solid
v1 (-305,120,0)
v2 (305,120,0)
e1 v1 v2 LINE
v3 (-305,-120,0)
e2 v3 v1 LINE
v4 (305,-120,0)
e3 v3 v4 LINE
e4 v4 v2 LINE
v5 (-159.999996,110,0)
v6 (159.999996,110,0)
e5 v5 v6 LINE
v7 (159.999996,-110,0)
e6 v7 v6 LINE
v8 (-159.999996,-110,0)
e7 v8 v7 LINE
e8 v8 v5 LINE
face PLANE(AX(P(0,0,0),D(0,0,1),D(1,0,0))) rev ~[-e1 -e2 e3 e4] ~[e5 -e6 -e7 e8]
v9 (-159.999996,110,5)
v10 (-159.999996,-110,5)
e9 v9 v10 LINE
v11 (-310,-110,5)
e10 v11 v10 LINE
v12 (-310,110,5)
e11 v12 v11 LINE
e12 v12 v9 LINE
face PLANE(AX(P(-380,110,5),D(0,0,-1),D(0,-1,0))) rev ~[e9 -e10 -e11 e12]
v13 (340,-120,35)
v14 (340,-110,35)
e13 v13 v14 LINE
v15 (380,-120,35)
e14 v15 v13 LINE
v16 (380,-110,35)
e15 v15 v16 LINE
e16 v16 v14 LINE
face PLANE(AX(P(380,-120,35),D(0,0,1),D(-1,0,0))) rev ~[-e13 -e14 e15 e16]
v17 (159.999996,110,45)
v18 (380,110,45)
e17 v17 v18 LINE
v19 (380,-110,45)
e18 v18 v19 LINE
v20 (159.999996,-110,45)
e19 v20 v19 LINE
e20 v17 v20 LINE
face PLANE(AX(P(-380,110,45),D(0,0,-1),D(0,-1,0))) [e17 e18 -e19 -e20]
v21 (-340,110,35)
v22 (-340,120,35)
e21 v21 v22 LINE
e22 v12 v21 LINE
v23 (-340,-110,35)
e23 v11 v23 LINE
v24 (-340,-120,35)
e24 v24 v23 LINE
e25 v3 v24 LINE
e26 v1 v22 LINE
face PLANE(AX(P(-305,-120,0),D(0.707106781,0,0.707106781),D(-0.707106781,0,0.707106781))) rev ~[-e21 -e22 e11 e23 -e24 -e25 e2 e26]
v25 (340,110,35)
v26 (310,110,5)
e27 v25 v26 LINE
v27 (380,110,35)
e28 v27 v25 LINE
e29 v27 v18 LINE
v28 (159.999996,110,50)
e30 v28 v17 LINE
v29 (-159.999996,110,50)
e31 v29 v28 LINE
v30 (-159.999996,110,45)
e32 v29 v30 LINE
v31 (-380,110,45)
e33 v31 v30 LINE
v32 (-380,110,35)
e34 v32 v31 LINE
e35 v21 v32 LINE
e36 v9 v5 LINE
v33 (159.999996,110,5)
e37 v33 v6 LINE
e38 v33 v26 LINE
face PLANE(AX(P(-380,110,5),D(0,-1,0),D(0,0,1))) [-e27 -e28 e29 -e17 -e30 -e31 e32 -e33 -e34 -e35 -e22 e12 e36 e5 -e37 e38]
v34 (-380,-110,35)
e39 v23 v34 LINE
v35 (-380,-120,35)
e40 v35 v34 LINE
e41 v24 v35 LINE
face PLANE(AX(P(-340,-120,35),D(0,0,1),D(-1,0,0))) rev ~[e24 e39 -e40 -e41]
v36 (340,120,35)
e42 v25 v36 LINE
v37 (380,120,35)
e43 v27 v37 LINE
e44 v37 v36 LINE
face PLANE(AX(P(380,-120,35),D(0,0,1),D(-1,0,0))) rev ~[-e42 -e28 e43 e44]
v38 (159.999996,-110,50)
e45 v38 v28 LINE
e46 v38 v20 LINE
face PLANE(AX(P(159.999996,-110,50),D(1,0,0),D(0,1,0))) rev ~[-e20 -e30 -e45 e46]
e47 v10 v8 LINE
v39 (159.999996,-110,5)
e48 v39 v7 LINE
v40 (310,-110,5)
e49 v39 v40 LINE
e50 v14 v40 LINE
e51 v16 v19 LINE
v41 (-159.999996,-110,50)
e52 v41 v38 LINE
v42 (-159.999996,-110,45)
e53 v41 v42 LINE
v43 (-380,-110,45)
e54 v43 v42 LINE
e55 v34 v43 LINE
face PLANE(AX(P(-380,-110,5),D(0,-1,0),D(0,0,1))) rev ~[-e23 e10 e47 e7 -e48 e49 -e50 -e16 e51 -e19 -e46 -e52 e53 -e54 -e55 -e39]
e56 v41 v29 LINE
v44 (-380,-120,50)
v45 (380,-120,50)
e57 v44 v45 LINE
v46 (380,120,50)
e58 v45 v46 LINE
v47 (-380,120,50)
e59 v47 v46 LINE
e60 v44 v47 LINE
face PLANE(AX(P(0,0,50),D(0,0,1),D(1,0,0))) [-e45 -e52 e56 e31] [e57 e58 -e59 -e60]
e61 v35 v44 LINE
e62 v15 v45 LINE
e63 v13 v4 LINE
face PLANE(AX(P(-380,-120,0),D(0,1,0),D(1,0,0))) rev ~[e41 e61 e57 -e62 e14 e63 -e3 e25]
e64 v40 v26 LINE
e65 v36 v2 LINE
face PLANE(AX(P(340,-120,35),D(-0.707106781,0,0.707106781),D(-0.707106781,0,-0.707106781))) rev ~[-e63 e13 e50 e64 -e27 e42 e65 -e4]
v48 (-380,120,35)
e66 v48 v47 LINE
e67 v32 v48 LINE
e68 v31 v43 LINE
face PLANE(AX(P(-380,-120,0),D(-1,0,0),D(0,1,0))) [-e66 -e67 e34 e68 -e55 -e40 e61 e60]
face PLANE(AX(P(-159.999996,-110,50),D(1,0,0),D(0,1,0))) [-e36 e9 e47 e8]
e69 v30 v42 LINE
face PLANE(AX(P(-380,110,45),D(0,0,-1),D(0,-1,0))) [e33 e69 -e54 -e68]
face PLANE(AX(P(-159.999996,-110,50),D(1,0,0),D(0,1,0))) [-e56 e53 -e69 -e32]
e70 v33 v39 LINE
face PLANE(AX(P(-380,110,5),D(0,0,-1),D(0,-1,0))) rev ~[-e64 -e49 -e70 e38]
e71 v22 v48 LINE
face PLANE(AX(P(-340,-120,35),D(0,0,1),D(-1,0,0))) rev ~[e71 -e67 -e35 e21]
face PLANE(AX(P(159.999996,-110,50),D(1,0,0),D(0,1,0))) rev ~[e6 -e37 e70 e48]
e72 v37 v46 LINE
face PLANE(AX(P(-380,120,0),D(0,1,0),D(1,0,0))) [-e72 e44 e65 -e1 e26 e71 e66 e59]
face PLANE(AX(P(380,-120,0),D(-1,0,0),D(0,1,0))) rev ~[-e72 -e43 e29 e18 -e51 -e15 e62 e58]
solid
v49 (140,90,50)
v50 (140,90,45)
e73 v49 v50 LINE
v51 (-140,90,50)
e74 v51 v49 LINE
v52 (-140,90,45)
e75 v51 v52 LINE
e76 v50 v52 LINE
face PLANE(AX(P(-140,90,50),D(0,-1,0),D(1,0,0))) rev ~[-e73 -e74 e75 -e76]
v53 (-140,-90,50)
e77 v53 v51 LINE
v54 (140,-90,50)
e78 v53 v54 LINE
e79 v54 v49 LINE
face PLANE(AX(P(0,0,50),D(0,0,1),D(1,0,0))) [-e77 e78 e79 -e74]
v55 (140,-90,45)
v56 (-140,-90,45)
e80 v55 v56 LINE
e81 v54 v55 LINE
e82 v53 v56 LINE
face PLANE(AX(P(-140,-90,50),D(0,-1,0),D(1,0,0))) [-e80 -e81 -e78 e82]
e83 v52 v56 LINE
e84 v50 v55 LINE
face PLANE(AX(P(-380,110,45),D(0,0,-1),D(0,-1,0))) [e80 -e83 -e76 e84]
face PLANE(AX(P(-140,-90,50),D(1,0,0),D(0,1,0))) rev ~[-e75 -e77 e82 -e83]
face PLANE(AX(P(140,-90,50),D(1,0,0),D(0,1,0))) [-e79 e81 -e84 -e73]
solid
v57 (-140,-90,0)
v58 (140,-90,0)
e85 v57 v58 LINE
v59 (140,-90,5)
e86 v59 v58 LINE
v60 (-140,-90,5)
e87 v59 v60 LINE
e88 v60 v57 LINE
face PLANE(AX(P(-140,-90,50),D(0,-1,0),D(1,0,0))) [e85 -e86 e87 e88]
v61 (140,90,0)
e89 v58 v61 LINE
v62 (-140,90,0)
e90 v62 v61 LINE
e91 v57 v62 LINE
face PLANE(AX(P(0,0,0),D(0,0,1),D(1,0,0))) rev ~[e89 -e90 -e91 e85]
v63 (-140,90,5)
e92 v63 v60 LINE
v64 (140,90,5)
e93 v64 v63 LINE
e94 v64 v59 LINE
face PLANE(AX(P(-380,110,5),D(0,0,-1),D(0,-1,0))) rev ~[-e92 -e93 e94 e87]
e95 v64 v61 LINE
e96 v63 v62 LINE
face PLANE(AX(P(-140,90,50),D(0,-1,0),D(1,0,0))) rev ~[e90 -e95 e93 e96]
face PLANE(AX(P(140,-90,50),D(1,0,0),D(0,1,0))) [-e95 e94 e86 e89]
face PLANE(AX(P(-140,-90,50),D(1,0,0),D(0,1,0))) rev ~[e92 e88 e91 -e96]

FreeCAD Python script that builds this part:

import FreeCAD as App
import Part
import Sketcher

V = App.Vector


def add_polygon(sketch, points):
    """Adds a closed chain of lines whose ends are joined by coincident constraints."""
    first, n = sketch.GeometryCount, len(points)
    for a, b in zip(points, points[1:] + points[:1]):
        sketch.addGeometry(Part.LineSegment(App.Vector(*a, 0), App.Vector(*b, 0)), False)
    for i in range(n):
        sketch.addConstraint(Sketcher.Constraint("Coincident", first + i, 2, first + (i + 1) % n, 1))

doc = App.newDocument("Part")
body = doc.addObject("PartDesign::Body", "Body")
body.AllowCompound = True

# Sketch on XY plane
sketch1 = doc.addObject("Sketcher::SketchObject", "Sketch")
body.addObject(sketch1)
sketch1.AttachmentSupport = (doc.XY_Plane, [""])
sketch1.MapMode = "FlatFace"
add_polygon(sketch1, [(-380, 120), (-380, -120), (380, -120), (380, 120)])  # lines 0-3
sketch1.addConstraint(Sketcher.Constraint("Vertical", 0))
sketch1.addConstraint(Sketcher.Constraint("Horizontal", 1))
sketch1.addConstraint(Sketcher.Constraint("Vertical", 2))
sketch1.addConstraint(Sketcher.Constraint("Horizontal", 3))
sketch1.addConstraint(Sketcher.Constraint("Symmetric", 0, 2, 2, 2, -1, 1))
sketch1.addConstraint(Sketcher.Constraint("DistanceX", 1, 1, 1, 2, 760.0))
sketch1.addConstraint(Sketcher.Constraint("DistanceY", 0, 2, 0, 1, 240.0))
pad1 = doc.addObject("PartDesign::Pad", "Pad")
body.addObject(pad1)
pad1.Profile = sketch1
pad1.Length = 50

# Sketch on YZ plane
sketch2 = doc.addObject("Sketcher::SketchObject", "Sketch001")
body.addObject(sketch2)
sketch2.AttachmentSupport = (doc.YZ_Plane, [""])
sketch2.MapMode = "FlatFace"
sketch2.AttachmentOffset = App.Placement(V(0, 0, -380), App.Rotation())
add_polygon(sketch2, [(110, 45), (110, 5), (-110, 5), (-110, 45)])  # lines 0-3
sketch2.addConstraint(Sketcher.Constraint("Vertical", 0))
sketch2.addConstraint(Sketcher.Constraint("Horizontal", 1))
sketch2.addConstraint(Sketcher.Constraint("Vertical", 2))
sketch2.addConstraint(Sketcher.Constraint("Horizontal", 3))
sketch2.addConstraint(Sketcher.Constraint("DistanceX", 1, 2, 1, 1, 220.0))
sketch2.addConstraint(Sketcher.Constraint("DistanceY", 0, 2, 0, 1, 40.0))
sketch2.addConstraint(Sketcher.Constraint("DistanceX", -1, 1, 0, 2, 110.0))
sketch2.addConstraint(Sketcher.Constraint("DistanceY", -1, 1, 0, 2, 5.0))
pocket1 = doc.addObject("PartDesign::Pocket", "Pocket")
body.addObject(pocket1)
pocket1.Profile = sketch2
pocket1.Length = 760
pocket1.Reversed = True

# Sketch on XZ plane
sketch3 = doc.addObject("Sketcher::SketchObject", "Sketch002")
body.addObject(sketch3)
sketch3.AttachmentSupport = (doc.XZ_Plane, [""])
sketch3.MapMode = "FlatFace"
sketch3.AttachmentOffset = App.Placement(V(0, 0, 120), App.Rotation())
add_polygon(sketch3, [(340, 35), (305, 0), (380, 0), (380, 35)])  # lines 0-3
add_polygon(sketch3, [(-340, 35), (-380, 35), (-380, 0), (-305, 0)])  # lines 4-7
sketch3.addConstraint(Sketcher.Constraint("Horizontal", 1))
sketch3.addConstraint(Sketcher.Constraint("Vertical", 2))
sketch3.addConstraint(Sketcher.Constraint("Horizontal", 3))
sketch3.addConstraint(Sketcher.Constraint("Horizontal", 4))
sketch3.addConstraint(Sketcher.Constraint("Vertical", 5))
sketch3.addConstraint(Sketcher.Constraint("Horizontal", 6))
sketch3.addConstraint(Sketcher.Constraint("Symmetric", 1, 2, 5, 2, -1, 1))
sketch3.addConstraint(Sketcher.Constraint("Symmetric", 0, 2, 6, 2, -2))
sketch3.addConstraint(Sketcher.Constraint("Symmetric", 3, 2, 7, 2, -2))
sketch3.addConstraint(Sketcher.Constraint("Perpendicular", 0, 7))
sketch3.addConstraint(Sketcher.Constraint("DistanceX", 1, 1, 1, 2, 75.0))
sketch3.addConstraint(Sketcher.Constraint("DistanceX", 3, 2, 3, 1, 40.0))
sketch3.addConstraint(Sketcher.Constraint("DistanceX", -1, 1, 0, 2, 305.0))
pocket2 = doc.addObject("PartDesign::Pocket", "Pocket001")
body.addObject(pocket2)
pocket2.Profile = sketch3
pocket2.Length = 240

# Sketch on XY plane
sketch4 = doc.addObject("Sketcher::SketchObject", "Sketch003")
body.addObject(sketch4)
sketch4.AttachmentSupport = (doc.XY_Plane, [""])
sketch4.MapMode = "FlatFace"
sketch4.AttachmentOffset = App.Placement(V(0, 0, 50), App.Rotation())
add_polygon(sketch4, [(-160, 110), (-160, -110), (160, -110), (160, 110)])  # lines 0-3
add_polygon(sketch4, [(140, -90), (-140, -90), (-140, 90), (140, 90)])  # lines 4-7
sketch4.addConstraint(Sketcher.Constraint("Vertical", 0))
sketch4.addConstraint(Sketcher.Constraint("Horizontal", 1))
sketch4.addConstraint(Sketcher.Constraint("Vertical", 2))
sketch4.addConstraint(Sketcher.Constraint("Horizontal", 3))
sketch4.addConstraint(Sketcher.Constraint("Horizontal", 4))
sketch4.addConstraint(Sketcher.Constraint("Vertical", 5))
sketch4.addConstraint(Sketcher.Constraint("Horizontal", 6))
sketch4.addConstraint(Sketcher.Constraint("Vertical", 7))
sketch4.addConstraint(Sketcher.Constraint("Symmetric", 0, 2, 2, 2, -1, 1))
sketch4.addConstraint(Sketcher.Constraint("Symmetric", 4, 2, 6, 2, -1, 1))
sketch4.addConstraint(Sketcher.Constraint("DistanceX", 4, 2, 4, 1, 280.0))
sketch4.addConstraint(Sketcher.Constraint("DistanceY", 0, 2, 0, 1, 220.0))
sketch4.addConstraint(Sketcher.Constraint("DistanceY", 5, 1, 5, 2, 180.0))
sketch4.addConstraint(Sketcher.Constraint("DistanceX", 1, 1, 1, 2, 319.999992))
pocket3 = doc.addObject("PartDesign::Pocket", "Pocket002")
body.addObject(pocket3)
pocket3.Profile = sketch4
pocket3.Length = 50

doc.recompute()
